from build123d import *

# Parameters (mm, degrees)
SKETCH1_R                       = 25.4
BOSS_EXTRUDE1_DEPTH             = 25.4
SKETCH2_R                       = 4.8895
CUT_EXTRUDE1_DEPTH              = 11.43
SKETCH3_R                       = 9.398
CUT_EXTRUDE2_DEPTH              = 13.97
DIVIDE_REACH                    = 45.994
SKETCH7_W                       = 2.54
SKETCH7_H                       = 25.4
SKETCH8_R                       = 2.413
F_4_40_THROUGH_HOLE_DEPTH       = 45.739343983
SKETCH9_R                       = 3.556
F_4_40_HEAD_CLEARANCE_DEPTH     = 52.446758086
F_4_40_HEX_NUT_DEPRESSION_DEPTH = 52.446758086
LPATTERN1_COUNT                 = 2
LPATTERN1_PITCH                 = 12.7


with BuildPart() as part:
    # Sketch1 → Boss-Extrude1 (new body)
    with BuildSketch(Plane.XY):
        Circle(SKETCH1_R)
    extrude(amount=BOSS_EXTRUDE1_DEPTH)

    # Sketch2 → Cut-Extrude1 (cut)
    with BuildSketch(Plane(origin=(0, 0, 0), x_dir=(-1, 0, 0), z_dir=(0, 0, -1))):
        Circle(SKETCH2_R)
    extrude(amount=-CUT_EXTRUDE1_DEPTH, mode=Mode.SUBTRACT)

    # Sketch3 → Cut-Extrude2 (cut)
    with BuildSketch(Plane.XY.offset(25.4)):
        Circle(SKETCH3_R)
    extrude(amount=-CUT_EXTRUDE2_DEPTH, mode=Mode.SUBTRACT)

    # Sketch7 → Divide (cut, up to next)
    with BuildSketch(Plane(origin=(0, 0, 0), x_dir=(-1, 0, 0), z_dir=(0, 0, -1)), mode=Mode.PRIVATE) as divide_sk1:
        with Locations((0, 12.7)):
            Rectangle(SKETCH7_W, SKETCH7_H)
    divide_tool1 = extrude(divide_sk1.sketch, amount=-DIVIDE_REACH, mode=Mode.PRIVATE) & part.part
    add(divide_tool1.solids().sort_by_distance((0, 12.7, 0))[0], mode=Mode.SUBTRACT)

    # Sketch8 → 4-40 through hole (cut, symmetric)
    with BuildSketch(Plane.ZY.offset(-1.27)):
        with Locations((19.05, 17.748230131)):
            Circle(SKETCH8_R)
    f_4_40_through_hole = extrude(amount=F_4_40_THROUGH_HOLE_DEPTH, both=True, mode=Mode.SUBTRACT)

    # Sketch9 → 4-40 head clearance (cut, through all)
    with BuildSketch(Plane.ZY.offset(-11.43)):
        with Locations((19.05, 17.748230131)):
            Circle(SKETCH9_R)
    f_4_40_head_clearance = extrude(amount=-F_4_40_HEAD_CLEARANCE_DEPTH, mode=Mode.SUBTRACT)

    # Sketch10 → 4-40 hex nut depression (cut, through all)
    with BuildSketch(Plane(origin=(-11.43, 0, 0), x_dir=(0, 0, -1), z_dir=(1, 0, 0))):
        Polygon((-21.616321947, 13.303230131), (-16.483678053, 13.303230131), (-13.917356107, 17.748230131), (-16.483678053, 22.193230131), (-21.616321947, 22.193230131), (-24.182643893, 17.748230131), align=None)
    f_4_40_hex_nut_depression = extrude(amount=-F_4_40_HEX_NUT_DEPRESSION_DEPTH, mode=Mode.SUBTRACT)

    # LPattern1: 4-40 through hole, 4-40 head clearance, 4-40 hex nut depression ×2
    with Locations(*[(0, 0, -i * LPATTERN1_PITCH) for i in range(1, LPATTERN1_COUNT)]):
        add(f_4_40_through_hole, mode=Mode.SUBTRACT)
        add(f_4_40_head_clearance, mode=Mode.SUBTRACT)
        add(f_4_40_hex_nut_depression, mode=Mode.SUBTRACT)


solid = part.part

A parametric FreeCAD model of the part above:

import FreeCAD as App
import Part
import Sketcher

V = App.Vector
Q = App.Units.Quantity

doc = App.newDocument("Part")
body = doc.addObject("PartDesign::Body", "Body")

# Sketch on XY plane
sketch1 = doc.addObject("Sketcher::SketchObject", "Sketch")
body.addObject(sketch1)
sketch1.AttachmentSupport = (doc.XY_Plane, [""])
sketch1.MapMode = "FlatFace"
sketch1.addGeometry(Part.Circle(V(0, 0, 0), V(0, 0, 1), 25), False)
sketch1.addConstraint([
    Sketcher.Constraint("Coincident", 0, 3, -1, 1),
    Sketcher.Constraint("Diameter", 0, Q("2 in")),
])
pad1 = doc.addObject("PartDesign::Pad", "Pad")
body.addObject(pad1)
pad1.Profile = sketch1
pad1.Length = Q("1 in")

# Sketch on XY plane
sketch2 = doc.addObject("Sketcher::SketchObject", "Sketch001")
body.addObject(sketch2)
sketch2.AttachmentSupport = (doc.XY_Plane, [""])
sketch2.MapMode = "FlatFace"
sketch2.addGeometry(Part.Circle(V(0, 0, 0), V(0, 0, 1), 4.9), False)
sketch2.addConstraint([
    Sketcher.Constraint("Coincident", 0, 3, -1, 1),
    Sketcher.Constraint("Diameter", 0, Q("0.385 in")),
])
pocket1 = doc.addObject("PartDesign::Pocket", "Pocket")
body.addObject(pocket1)
pocket1.Profile = sketch2
pocket1.Length = Q("0.45 in")
pocket1.Reversed = True

# Sketch on XY plane
sketch3 = doc.addObject("Sketcher::SketchObject", "Sketch002")
body.addObject(sketch3)
sketch3.AttachmentSupport = (doc.XY_Plane, [""])
sketch3.MapMode = "FlatFace"
sketch3.AttachmentOffset = App.Placement(V(0, 0, 1 * 25.4), App.Rotation())
sketch3.addGeometry(Part.Circle(V(0, 0, 0), V(0, 0, 1), 9), False)
sketch3.addConstraint([
    Sketcher.Constraint("Coincident", 0, 3, -1, 1),
    Sketcher.Constraint("Diameter", 0, Q("0.74 in")),
])
pocket2 = doc.addObject("PartDesign::Pocket", "Pocket001")
body.addObject(pocket2)
pocket2.Profile = sketch3
pocket2.Length = Q("0.55 in")

# Sketch on XY plane
sketch4 = doc.addObject("Sketcher::SketchObject", "Sketch003")
body.addObject(sketch4)
sketch4.AttachmentSupport = (doc.XY_Plane, [""])
sketch4.MapMode = "FlatFace"
sketch4.addGeometry([
    Part.LineSegment(V(1.3, 25.4, 0), V(1.3, 0, 0)),
    Part.LineSegment(V(1.3, 0, 0), V(-1.3, 0, 0)),
    Part.LineSegment(V(-1.3, 0, 0), V(-1.3, 25.4, 0)),
    Part.LineSegment(V(-1.3, 25.4, 0), V(1.3, 25.4, 0)),
], False)
sketch4.addConstraint([
    Sketcher.Constraint("Coincident", 0, 2, 1, 1),
    Sketcher.Constraint("Coincident", 1, 2, 2, 1),
    Sketcher.Constraint("Coincident", 2, 2, 3, 1),
    Sketcher.Constraint("Coincident", 3, 2, 0, 1),
    Sketcher.Constraint("Vertical", 0),
    Sketcher.Constraint("Horizontal", 1),
    Sketcher.Constraint("Vertical", 2),
    Sketcher.Constraint("Horizontal", 3),
    Sketcher.Constraint("Symmetric", 0, 2, 1, 2, -1, 1),
    Sketcher.Constraint("DistanceY", 0, 2, 0, 1, Q("1 in")),
    Sketcher.Constraint("DistanceX", 1, 2, 1, 1, Q("0.1 in")),
])
pocket3 = doc.addObject("PartDesign::Pocket", "Pocket002")
body.addObject(pocket3)
pocket3.Profile = sketch4
pocket3.Type = "UpToFirst"
pocket3.Reversed = True

# Sketch on YZ plane
sketch5 = doc.addObject("Sketcher::SketchObject", "Sketch004")
body.addObject(sketch5)
sketch5.AttachmentSupport = (doc.YZ_Plane, [""])
sketch5.MapMode = "FlatFace"
sketch5.AttachmentOffset = App.Placement(V(0, 0, 0.05 * 25.4), App.Rotation())
sketch5.addGeometry(Part.Circle(V(17.7, 19.1, 0), V(0, 0, 1), 2.4), False)
sketch5.addConstraint([
    Sketcher.Constraint("Diameter", 0, Q("0.19 in")),
    Sketcher.Constraint("DistanceY", -1, 1, 0, 3, Q("0.75 in")),
    Sketcher.Constraint("DistanceX", -1, 1, 0, 3, Q("17.74823 mm")),
])
pocket4 = doc.addObject("PartDesign::Pocket", "Pocket003")
body.addObject(pocket4)
pocket4.Profile = sketch5
pocket4.Length = 91.478688
pocket4.Midplane = True

# Sketch on YZ plane
sketch6 = doc.addObject("Sketcher::SketchObject", "Sketch005")
body.addObject(sketch6)
sketch6.AttachmentSupport = (doc.YZ_Plane, [""])
sketch6.MapMode = "FlatFace"
sketch6.AttachmentOffset = App.Placement(V(0, 0, 0.45 * 25.4), App.Rotation())
sketch6.addGeometry(Part.Circle(V(17.7, 19.1, 0), V(0, 0, 1), 3.6), False)
sketch6.addConstraint([
    Sketcher.Constraint("Diameter", 0, Q("0.28 in")),
    Sketcher.Constraint("DistanceY", -1, 1, 0, 3, Q("0.75 in")),
    Sketcher.Constraint("DistanceX", -1, 1, 0, 3, Q("17.74823 mm")),
])
pocket5 = doc.addObject("PartDesign::Pocket", "Pocket004")
body.addObject(pocket5)
pocket5.Profile = sketch6
pocket5.Type = "ThroughAll"
pocket5.Reversed = True

# Sketch on YZ plane
sketch7 = doc.addObject("Sketcher::SketchObject", "Sketch006")
body.addObject(sketch7)
sketch7.AttachmentSupport = (doc.YZ_Plane, [""])
sketch7.MapMode = "FlatFace"
sketch7.AttachmentOffset = App.Placement(V(0, 0, -0.45 * 25.4), App.Rotation())
sketch7.addGeometry([
    Part.LineSegment(V(13, 22, 0), V(13, 16, 0)),  # 0
    Part.LineSegment(V(13, 16, 0), V(18, 14, 0)),  # 1
    Part.LineSegment(V(18, 14, 0), V(22, 16, 0)),  # 2
    Part.LineSegment(V(22, 16, 0), V(22, 22, 0)),  # 3
    Part.LineSegment(V(22, 22, 0), V(18, 24, 0)),  # 4
    Part.LineSegment(V(18, 24, 0), V(13, 22, 0)),  # 5
], False)
sketch7.addConstraint([
    Sketcher.Constraint("Coincident", 0, 2, 1, 1),
    Sketcher.Constraint("Coincident", 1, 2, 2, 1),
    Sketcher.Constraint("Coincident", 2, 2, 3, 1),
    Sketcher.Constraint("Coincident", 3, 2, 4, 1),
    Sketcher.Constraint("Coincident", 4, 2, 5, 1),
    Sketcher.Constraint("Coincident", 5, 2, 0, 1),
    Sketcher.Constraint("Vertical", 0),
    Sketcher.Constraint("Vertical", 3),
    Sketcher.Constraint("Parallel", 1, 4),
    Sketcher.Constraint("Parallel", 2, 5),
    Sketcher.Constraint("Horizontal", 0, 2, 2, 2),
    Sketcher.Constraint("Horizontal", 3, 2, 5, 2),
    Sketcher.Constraint("Vertical", 1, 2, 4, 2),
    Sketcher.Constraint("Angle", 1, Q("-30 deg")),
    Sketcher.Constraint("DistanceX", 0, 2, 2, 2, Q("0.35 in")),
    Sketcher.Constraint("DistanceY", 0, 2, 0, 1, Q("5.132644 mm")),
    Sketcher.Constraint("DistanceX", -1, 1, 0, 2, Q("13.30323 mm")),
    Sketcher.Constraint("DistanceY", -1, 1, 0, 2, Q("16.483678 mm")),
])
pocket6 = doc.addObject("PartDesign::Pocket", "Pocket005")
body.addObject(pocket6)
pocket6.Profile = sketch7
pocket6.Type = "ThroughAll"
doc.recompute()

linearpattern = doc.addObject("PartDesign::LinearPattern", "LinearPattern")
body.addObject(linearpattern)
linearpattern.Originals = [pocket4, pocket5, pocket6]
linearpattern.Direction = (doc.Z_Axis, [""])
linearpattern.Mode = "offset"
linearpattern.Offset = Q("0.5 in")
linearpattern.Occurrences = 2
linearpattern.Reversed = True
body.Tip = linearpattern

doc.recompute()
